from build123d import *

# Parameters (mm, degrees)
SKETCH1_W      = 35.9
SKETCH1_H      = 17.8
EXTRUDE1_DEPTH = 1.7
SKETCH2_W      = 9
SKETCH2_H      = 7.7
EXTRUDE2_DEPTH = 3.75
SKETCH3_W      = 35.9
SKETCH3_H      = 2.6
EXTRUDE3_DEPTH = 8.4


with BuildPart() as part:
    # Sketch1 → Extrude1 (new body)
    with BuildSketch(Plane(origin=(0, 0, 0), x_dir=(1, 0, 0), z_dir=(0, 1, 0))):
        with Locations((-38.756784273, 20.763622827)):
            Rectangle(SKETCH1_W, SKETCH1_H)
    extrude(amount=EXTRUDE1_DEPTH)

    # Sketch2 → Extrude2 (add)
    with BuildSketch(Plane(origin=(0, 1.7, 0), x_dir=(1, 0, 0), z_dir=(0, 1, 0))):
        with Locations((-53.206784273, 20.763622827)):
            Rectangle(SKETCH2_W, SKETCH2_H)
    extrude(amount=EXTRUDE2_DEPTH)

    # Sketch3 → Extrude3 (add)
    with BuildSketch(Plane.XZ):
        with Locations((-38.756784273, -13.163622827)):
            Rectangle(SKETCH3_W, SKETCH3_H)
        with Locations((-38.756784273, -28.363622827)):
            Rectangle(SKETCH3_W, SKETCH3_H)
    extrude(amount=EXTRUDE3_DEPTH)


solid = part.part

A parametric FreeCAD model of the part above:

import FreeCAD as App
import Part
import Sketcher
from FreeCAD import Vector

doc = App.newDocument("Part")
params = doc.addObject("Spreadsheet::Sheet", "Params")
for row, (alias, value) in enumerate([
    ("sketch1_width", "35.9 mm"),
    ("sketch1_height", "17.8 mm"),
    ("pad1_length", "1.7 mm"),
    ("sketch2_width", "9 mm"),
    ("sketch2_height", "7.7 mm"),
    ("pad2_length", "3.75 mm"),
    ("sketch3_width", "35.9 mm"),
    ("sketch3_height", "2.6 mm"),
    ("pad3_length", "8.4 mm"),
], start=1):
    params.set(f"A{row}", alias)
    params.set(f"B{row}", "=" + value)
    params.setAlias(f"B{row}", alias)

body = doc.addObject("PartDesign::Body", "Body")

# Sketch on XZ plane
sketch1 = body.newObject("Sketcher::SketchObject", "Sketch")
sketch1.AttachmentSupport = (doc.getObject("XZ_Plane"), [""])
sketch1.MapMode = "FlatFace"
sketch1.addGeometry(Part.LineSegment(Vector(-56.706784, -29.663623, 0), Vector(-56.706784, -11.863623, 0)), False)
sketch1.addGeometry(Part.LineSegment(Vector(-56.706784, -11.863623, 0), Vector(-20.806784, -11.863623, 0)), False)
sketch1.addGeometry(Part.LineSegment(Vector(-20.806784, -11.863623, 0), Vector(-20.806784, -29.663623, 0)), False)
sketch1.addGeometry(Part.LineSegment(Vector(-20.806784, -29.663623, 0), Vector(-56.706784, -29.663623, 0)), False)
sketch1.addConstraint(Sketcher.Constraint("Coincident", 0, 2, 1, 1))
sketch1.addConstraint(Sketcher.Constraint("Coincident", 1, 2, 2, 1))
sketch1.addConstraint(Sketcher.Constraint("Coincident", 2, 2, 3, 1))
sketch1.addConstraint(Sketcher.Constraint("Coincident", 3, 2, 0, 1))
sketch1.addConstraint(Sketcher.Constraint("Vertical", 0))
sketch1.addConstraint(Sketcher.Constraint("Horizontal", 1))
sketch1.addConstraint(Sketcher.Constraint("Vertical", 2))
sketch1.addConstraint(Sketcher.Constraint("Horizontal", 3))
sketch1.addConstraint(Sketcher.Constraint("DistanceX", 1, 1, 1, 2, 35.9))
sketch1.addConstraint(Sketcher.Constraint("DistanceY", 0, 1, 0, 2, 17.8))
sketch1.addConstraint(Sketcher.Constraint("DistanceX", 0, 2, -1, 1, 56.706784))
sketch1.addConstraint(Sketcher.Constraint("DistanceY", 0, 2, -1, 1, 11.863623))
sketch1.setExpression("Constraints[8]", "Params.sketch1_width")
sketch1.setExpression("Constraints[9]", "Params.sketch1_height")
pad1 = body.newObject("PartDesign::Pad", "Pad")
pad1.Profile = sketch1
pad1.setExpression("Length", "Params.pad1_length")
pad1.Reversed = True

# Sketch on XZ plane
sketch2 = body.newObject("Sketcher::SketchObject", "Sketch001")
sketch2.AttachmentSupport = (doc.getObject("XZ_Plane"), [""])
sketch2.MapMode = "FlatFace"
sketch2.AttachmentOffset = App.Placement(Vector(0, 0, -1.7), App.Rotation())
sketch2.addGeometry(Part.LineSegment(Vector(-57.706784, -24.613623, 0), Vector(-57.706784, -16.913623, 0)), False)
sketch2.addGeometry(Part.LineSegment(Vector(-57.706784, -16.913623, 0), Vector(-48.706784, -16.913623, 0)), False)
sketch2.addGeometry(Part.LineSegment(Vector(-48.706784, -16.913623, 0), Vector(-48.706784, -24.613623, 0)), False)
sketch2.addGeometry(Part.LineSegment(Vector(-48.706784, -24.613623, 0), Vector(-57.706784, -24.613623, 0)), False)
sketch2.addConstraint(Sketcher.Constraint("Coincident", 0, 2, 1, 1))
sketch2.addConstraint(Sketcher.Constraint("Coincident", 1, 2, 2, 1))
sketch2.addConstraint(Sketcher.Constraint("Coincident", 2, 2, 3, 1))
sketch2.addConstraint(Sketcher.Constraint("Coincident", 3, 2, 0, 1))
sketch2.addConstraint(Sketcher.Constraint("Vertical", 0))
sketch2.addConstraint(Sketcher.Constraint("Horizontal", 1))
sketch2.addConstraint(Sketcher.Constraint("Vertical", 2))
sketch2.addConstraint(Sketcher.Constraint("Horizontal", 3))
sketch2.addConstraint(Sketcher.Constraint("DistanceX", 1, 1, 1, 2, 9.0))
sketch2.addConstraint(Sketcher.Constraint("DistanceY", 0, 1, 0, 2, 7.7))
sketch2.addConstraint(Sketcher.Constraint("DistanceX", 0, 2, -1, 1, 57.706784))
sketch2.addConstraint(Sketcher.Constraint("DistanceY", 0, 2, -1, 1, 16.913623))
sketch2.setExpression("Constraints[8]", "Params.sketch2_width")
sketch2.setExpression("Constraints[9]", "Params.sketch2_height")
pad2 = body.newObject("PartDesign::Pad", "Pad001")
pad2.Profile = sketch2
pad2.setExpression("Length", "Params.pad2_length")
pad2.Reversed = True

# Sketch on XZ plane
sketch3 = body.newObject("Sketcher::SketchObject", "Sketch002")
sketch3.AttachmentSupport = (doc.getObject("XZ_Plane"), [""])
sketch3.MapMode = "FlatFace"
sketch3.addGeometry(Part.LineSegment(Vector(-56.706784, -11.863623, 0), Vector(-56.706784, -14.463623, 0)), False)
sketch3.addGeometry(Part.LineSegment(Vector(-56.706784, -14.463623, 0), Vector(-20.806784, -14.463623, 0)), False)
sketch3.addGeometry(Part.LineSegment(Vector(-20.806784, -14.463623, 0), Vector(-20.806784, -11.863623, 0)), False)
sketch3.addGeometry(Part.LineSegment(Vector(-20.806784, -11.863623, 0), Vector(-56.706784, -11.863623, 0)), False)
sketch3.addGeometry(Part.LineSegment(Vector(-56.706784, -27.063623, 0), Vector(-56.706784, -29.663623, 0)), False)
sketch3.addGeometry(Part.LineSegment(Vector(-56.706784, -29.663623, 0), Vector(-20.806784, -29.663623, 0)), False)
sketch3.addGeometry(Part.LineSegment(Vector(-20.806784, -29.663623, 0), Vector(-20.806784, -27.063623, 0)), False)
sketch3.addGeometry(Part.LineSegment(Vector(-20.806784, -27.063623, 0), Vector(-56.706784, -27.063623, 0)), False)
sketch3.addConstraint(Sketcher.Constraint("Coincident", 0, 2, 1, 1))
sketch3.addConstraint(Sketcher.Constraint("Coincident", 1, 2, 2, 1))
sketch3.addConstraint(Sketcher.Constraint("Coincident", 2, 2, 3, 1))
sketch3.addConstraint(Sketcher.Constraint("Coincident", 3, 2, 0, 1))
sketch3.addConstraint(Sketcher.Constraint("Coincident", 4, 2, 5, 1))
sketch3.addConstraint(Sketcher.Constraint("Coincident", 5, 2, 6, 1))
sketch3.addConstraint(Sketcher.Constraint("Coincident", 6, 2, 7, 1))
sketch3.addConstraint(Sketcher.Constraint("Coincident", 7, 2, 4, 1))
sketch3.addConstraint(Sketcher.Constraint("Vertical", 0))
sketch3.addConstraint(Sketcher.Constraint("Horizontal", 1))
sketch3.addConstraint(Sketcher.Constraint("Vertical", 2))
sketch3.addConstraint(Sketcher.Constraint("Horizontal", 3))
sketch3.addConstraint(Sketcher.Constraint("Vertical", 4))
sketch3.addConstraint(Sketcher.Constraint("Horizontal", 5))
sketch3.addConstraint(Sketcher.Constraint("Vertical", 6))
sketch3.addConstraint(Sketcher.Constraint("Horizontal", 7))
sketch3.addConstraint(Sketcher.Constraint("Vertical", 3, 2, 4, 2))
sketch3.addConstraint(Sketcher.Constraint("Vertical", 2, 2, 5, 2))
sketch3.addConstraint(Sketcher.Constraint("Equal", 2, 4))
sketch3.addConstraint(Sketcher.Constraint("DistanceX", 1, 1, 1, 2, 35.9))
sketch3.addConstraint(Sketcher.Constraint("DistanceY", 0, 2, 0, 1, 2.6))
sketch3.addConstraint(Sketcher.Constraint("DistanceY", 4, 2, 0, 2, 15.2))
sketch3.addConstraint(Sketcher.Constraint("DistanceX", 0, 2, -1, 1, 56.706784))
sketch3.addConstraint(Sketcher.Constraint("DistanceY", 0, 2, -1, 1, 14.463623))
sketch3.setExpression("Constraints[19]", "Params.sketch3_width")
sketch3.setExpression("Constraints[20]", "Params.sketch3_height")
pad3 = body.newObject("PartDesign::Pad", "Pad002")
pad3.Profile = sketch3
pad3.setExpression("Length", "Params.pad3_length")

doc.recompute()
